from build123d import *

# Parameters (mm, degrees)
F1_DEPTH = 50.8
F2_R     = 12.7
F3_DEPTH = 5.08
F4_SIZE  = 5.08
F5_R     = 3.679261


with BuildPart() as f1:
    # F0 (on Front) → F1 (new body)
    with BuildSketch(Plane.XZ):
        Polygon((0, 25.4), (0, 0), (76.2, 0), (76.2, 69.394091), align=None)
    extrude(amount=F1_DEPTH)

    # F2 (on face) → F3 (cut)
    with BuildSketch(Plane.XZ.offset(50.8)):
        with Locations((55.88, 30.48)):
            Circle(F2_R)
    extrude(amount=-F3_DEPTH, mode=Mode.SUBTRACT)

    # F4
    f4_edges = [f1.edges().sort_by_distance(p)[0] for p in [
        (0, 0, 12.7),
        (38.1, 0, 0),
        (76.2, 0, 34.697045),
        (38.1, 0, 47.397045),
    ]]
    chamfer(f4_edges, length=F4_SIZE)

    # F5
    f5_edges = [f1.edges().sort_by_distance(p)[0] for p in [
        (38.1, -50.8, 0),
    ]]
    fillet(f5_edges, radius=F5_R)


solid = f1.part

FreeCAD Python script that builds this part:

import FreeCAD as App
import Part
import Sketcher
from FreeCAD import Vector
Q = App.Units.Quantity


def edges_at(feature, points):
    """Names of the edges that pass closest to the given points."""
    edges = feature.Shape.Edges
    near = lambda p: min(range(len(edges)), key=lambda i: edges[i].distToShape(Part.Vertex(*p))[0])
    return sorted({f"Edge{near(p) + 1}" for p in points})

doc = App.newDocument("Part")
body = doc.addObject("PartDesign::Body", "Body")

# Sketch on XZ plane
sketch1 = body.newObject("Sketcher::SketchObject", "Sketch")
sketch1.AttachmentSupport = (doc.getObject("XZ_Plane"), [""])
sketch1.MapMode = "FlatFace"
sketch1.addGeometry([
    Part.LineSegment(Vector(0, 25.4, 0), Vector(0, 0, 0)),
    Part.LineSegment(Vector(0, 0, 0), Vector(76.2, 0, 0)),
    Part.LineSegment(Vector(76.2, 0, 0), Vector(76.2, 69.394091, 0)),
    Part.LineSegment(Vector(76.2, 69.394091, 0), Vector(0, 25.4, 0)),
], False)
sketch1.addConstraint([
    Sketcher.Constraint("Coincident", 0, 2, 1, 1),
    Sketcher.Constraint("Coincident", 1, 2, 2, 1),
    Sketcher.Constraint("Coincident", 2, 2, 3, 1),
    Sketcher.Constraint("Coincident", 3, 2, 0, 1),
    Sketcher.Constraint("Vertical", 0),
    Sketcher.Constraint("Horizontal", 1),
    Sketcher.Constraint("Vertical", 2),
    Sketcher.Constraint("Coincident", 0, 2, -1, 1),
    Sketcher.Constraint("DistanceX", 1, 1, 1, 2, Q("3 in")),
    Sketcher.Constraint("DistanceY", 0, 2, 0, 1, Q("1 in")),
    Sketcher.Constraint("Angle", 3, Q("-150 deg")),
])
pad1 = body.newObject("PartDesign::Pad", "Pad")
pad1.Profile = sketch1
pad1.Length = Q("2 in")

# Sketch on XZ plane
sketch2 = body.newObject("Sketcher::SketchObject", "Sketch001")
sketch2.AttachmentSupport = (doc.getObject("XZ_Plane"), [""])
sketch2.MapMode = "FlatFace"
sketch2.AttachmentOffset = App.Placement(Vector(0, 0, 2 * 25.4), App.Rotation())
sketch2.addGeometry(Part.Circle(Vector(55.88, 30.48, 0), Vector(0, 0, 1), 12.7), False)
sketch2.addConstraint([
    Sketcher.Constraint("Diameter", 0, Q("1 in")),
    Sketcher.Constraint("DistanceX", -1, 1, 0, 3, Q("2.2 in")),
    Sketcher.Constraint("DistanceY", -1, 1, 0, 3, Q("1.2 in")),
])
pocket1 = body.newObject("PartDesign::Pocket", "Pocket")
pocket1.Profile = sketch2
pocket1.Length = Q("0.2 in")
doc.recompute()

chamfer = body.newObject("PartDesign::Chamfer", "Chamfer")
chamfer.Base = (pocket1, edges_at(pocket1, [
    (0, 0, 12.7),
    (38.1, 0, 0),
    (76.2, 0, 34.697),
    (38.1, 0, 47.397),
]))
chamfer.Size = Q("0.2 in")
doc.recompute()

fillet = body.newObject("PartDesign::Fillet", "Fillet")
fillet.Base = (chamfer, edges_at(chamfer, [(38.1, -50.8, 0)]))
fillet.Radius = 3.679261

doc.recompute()
